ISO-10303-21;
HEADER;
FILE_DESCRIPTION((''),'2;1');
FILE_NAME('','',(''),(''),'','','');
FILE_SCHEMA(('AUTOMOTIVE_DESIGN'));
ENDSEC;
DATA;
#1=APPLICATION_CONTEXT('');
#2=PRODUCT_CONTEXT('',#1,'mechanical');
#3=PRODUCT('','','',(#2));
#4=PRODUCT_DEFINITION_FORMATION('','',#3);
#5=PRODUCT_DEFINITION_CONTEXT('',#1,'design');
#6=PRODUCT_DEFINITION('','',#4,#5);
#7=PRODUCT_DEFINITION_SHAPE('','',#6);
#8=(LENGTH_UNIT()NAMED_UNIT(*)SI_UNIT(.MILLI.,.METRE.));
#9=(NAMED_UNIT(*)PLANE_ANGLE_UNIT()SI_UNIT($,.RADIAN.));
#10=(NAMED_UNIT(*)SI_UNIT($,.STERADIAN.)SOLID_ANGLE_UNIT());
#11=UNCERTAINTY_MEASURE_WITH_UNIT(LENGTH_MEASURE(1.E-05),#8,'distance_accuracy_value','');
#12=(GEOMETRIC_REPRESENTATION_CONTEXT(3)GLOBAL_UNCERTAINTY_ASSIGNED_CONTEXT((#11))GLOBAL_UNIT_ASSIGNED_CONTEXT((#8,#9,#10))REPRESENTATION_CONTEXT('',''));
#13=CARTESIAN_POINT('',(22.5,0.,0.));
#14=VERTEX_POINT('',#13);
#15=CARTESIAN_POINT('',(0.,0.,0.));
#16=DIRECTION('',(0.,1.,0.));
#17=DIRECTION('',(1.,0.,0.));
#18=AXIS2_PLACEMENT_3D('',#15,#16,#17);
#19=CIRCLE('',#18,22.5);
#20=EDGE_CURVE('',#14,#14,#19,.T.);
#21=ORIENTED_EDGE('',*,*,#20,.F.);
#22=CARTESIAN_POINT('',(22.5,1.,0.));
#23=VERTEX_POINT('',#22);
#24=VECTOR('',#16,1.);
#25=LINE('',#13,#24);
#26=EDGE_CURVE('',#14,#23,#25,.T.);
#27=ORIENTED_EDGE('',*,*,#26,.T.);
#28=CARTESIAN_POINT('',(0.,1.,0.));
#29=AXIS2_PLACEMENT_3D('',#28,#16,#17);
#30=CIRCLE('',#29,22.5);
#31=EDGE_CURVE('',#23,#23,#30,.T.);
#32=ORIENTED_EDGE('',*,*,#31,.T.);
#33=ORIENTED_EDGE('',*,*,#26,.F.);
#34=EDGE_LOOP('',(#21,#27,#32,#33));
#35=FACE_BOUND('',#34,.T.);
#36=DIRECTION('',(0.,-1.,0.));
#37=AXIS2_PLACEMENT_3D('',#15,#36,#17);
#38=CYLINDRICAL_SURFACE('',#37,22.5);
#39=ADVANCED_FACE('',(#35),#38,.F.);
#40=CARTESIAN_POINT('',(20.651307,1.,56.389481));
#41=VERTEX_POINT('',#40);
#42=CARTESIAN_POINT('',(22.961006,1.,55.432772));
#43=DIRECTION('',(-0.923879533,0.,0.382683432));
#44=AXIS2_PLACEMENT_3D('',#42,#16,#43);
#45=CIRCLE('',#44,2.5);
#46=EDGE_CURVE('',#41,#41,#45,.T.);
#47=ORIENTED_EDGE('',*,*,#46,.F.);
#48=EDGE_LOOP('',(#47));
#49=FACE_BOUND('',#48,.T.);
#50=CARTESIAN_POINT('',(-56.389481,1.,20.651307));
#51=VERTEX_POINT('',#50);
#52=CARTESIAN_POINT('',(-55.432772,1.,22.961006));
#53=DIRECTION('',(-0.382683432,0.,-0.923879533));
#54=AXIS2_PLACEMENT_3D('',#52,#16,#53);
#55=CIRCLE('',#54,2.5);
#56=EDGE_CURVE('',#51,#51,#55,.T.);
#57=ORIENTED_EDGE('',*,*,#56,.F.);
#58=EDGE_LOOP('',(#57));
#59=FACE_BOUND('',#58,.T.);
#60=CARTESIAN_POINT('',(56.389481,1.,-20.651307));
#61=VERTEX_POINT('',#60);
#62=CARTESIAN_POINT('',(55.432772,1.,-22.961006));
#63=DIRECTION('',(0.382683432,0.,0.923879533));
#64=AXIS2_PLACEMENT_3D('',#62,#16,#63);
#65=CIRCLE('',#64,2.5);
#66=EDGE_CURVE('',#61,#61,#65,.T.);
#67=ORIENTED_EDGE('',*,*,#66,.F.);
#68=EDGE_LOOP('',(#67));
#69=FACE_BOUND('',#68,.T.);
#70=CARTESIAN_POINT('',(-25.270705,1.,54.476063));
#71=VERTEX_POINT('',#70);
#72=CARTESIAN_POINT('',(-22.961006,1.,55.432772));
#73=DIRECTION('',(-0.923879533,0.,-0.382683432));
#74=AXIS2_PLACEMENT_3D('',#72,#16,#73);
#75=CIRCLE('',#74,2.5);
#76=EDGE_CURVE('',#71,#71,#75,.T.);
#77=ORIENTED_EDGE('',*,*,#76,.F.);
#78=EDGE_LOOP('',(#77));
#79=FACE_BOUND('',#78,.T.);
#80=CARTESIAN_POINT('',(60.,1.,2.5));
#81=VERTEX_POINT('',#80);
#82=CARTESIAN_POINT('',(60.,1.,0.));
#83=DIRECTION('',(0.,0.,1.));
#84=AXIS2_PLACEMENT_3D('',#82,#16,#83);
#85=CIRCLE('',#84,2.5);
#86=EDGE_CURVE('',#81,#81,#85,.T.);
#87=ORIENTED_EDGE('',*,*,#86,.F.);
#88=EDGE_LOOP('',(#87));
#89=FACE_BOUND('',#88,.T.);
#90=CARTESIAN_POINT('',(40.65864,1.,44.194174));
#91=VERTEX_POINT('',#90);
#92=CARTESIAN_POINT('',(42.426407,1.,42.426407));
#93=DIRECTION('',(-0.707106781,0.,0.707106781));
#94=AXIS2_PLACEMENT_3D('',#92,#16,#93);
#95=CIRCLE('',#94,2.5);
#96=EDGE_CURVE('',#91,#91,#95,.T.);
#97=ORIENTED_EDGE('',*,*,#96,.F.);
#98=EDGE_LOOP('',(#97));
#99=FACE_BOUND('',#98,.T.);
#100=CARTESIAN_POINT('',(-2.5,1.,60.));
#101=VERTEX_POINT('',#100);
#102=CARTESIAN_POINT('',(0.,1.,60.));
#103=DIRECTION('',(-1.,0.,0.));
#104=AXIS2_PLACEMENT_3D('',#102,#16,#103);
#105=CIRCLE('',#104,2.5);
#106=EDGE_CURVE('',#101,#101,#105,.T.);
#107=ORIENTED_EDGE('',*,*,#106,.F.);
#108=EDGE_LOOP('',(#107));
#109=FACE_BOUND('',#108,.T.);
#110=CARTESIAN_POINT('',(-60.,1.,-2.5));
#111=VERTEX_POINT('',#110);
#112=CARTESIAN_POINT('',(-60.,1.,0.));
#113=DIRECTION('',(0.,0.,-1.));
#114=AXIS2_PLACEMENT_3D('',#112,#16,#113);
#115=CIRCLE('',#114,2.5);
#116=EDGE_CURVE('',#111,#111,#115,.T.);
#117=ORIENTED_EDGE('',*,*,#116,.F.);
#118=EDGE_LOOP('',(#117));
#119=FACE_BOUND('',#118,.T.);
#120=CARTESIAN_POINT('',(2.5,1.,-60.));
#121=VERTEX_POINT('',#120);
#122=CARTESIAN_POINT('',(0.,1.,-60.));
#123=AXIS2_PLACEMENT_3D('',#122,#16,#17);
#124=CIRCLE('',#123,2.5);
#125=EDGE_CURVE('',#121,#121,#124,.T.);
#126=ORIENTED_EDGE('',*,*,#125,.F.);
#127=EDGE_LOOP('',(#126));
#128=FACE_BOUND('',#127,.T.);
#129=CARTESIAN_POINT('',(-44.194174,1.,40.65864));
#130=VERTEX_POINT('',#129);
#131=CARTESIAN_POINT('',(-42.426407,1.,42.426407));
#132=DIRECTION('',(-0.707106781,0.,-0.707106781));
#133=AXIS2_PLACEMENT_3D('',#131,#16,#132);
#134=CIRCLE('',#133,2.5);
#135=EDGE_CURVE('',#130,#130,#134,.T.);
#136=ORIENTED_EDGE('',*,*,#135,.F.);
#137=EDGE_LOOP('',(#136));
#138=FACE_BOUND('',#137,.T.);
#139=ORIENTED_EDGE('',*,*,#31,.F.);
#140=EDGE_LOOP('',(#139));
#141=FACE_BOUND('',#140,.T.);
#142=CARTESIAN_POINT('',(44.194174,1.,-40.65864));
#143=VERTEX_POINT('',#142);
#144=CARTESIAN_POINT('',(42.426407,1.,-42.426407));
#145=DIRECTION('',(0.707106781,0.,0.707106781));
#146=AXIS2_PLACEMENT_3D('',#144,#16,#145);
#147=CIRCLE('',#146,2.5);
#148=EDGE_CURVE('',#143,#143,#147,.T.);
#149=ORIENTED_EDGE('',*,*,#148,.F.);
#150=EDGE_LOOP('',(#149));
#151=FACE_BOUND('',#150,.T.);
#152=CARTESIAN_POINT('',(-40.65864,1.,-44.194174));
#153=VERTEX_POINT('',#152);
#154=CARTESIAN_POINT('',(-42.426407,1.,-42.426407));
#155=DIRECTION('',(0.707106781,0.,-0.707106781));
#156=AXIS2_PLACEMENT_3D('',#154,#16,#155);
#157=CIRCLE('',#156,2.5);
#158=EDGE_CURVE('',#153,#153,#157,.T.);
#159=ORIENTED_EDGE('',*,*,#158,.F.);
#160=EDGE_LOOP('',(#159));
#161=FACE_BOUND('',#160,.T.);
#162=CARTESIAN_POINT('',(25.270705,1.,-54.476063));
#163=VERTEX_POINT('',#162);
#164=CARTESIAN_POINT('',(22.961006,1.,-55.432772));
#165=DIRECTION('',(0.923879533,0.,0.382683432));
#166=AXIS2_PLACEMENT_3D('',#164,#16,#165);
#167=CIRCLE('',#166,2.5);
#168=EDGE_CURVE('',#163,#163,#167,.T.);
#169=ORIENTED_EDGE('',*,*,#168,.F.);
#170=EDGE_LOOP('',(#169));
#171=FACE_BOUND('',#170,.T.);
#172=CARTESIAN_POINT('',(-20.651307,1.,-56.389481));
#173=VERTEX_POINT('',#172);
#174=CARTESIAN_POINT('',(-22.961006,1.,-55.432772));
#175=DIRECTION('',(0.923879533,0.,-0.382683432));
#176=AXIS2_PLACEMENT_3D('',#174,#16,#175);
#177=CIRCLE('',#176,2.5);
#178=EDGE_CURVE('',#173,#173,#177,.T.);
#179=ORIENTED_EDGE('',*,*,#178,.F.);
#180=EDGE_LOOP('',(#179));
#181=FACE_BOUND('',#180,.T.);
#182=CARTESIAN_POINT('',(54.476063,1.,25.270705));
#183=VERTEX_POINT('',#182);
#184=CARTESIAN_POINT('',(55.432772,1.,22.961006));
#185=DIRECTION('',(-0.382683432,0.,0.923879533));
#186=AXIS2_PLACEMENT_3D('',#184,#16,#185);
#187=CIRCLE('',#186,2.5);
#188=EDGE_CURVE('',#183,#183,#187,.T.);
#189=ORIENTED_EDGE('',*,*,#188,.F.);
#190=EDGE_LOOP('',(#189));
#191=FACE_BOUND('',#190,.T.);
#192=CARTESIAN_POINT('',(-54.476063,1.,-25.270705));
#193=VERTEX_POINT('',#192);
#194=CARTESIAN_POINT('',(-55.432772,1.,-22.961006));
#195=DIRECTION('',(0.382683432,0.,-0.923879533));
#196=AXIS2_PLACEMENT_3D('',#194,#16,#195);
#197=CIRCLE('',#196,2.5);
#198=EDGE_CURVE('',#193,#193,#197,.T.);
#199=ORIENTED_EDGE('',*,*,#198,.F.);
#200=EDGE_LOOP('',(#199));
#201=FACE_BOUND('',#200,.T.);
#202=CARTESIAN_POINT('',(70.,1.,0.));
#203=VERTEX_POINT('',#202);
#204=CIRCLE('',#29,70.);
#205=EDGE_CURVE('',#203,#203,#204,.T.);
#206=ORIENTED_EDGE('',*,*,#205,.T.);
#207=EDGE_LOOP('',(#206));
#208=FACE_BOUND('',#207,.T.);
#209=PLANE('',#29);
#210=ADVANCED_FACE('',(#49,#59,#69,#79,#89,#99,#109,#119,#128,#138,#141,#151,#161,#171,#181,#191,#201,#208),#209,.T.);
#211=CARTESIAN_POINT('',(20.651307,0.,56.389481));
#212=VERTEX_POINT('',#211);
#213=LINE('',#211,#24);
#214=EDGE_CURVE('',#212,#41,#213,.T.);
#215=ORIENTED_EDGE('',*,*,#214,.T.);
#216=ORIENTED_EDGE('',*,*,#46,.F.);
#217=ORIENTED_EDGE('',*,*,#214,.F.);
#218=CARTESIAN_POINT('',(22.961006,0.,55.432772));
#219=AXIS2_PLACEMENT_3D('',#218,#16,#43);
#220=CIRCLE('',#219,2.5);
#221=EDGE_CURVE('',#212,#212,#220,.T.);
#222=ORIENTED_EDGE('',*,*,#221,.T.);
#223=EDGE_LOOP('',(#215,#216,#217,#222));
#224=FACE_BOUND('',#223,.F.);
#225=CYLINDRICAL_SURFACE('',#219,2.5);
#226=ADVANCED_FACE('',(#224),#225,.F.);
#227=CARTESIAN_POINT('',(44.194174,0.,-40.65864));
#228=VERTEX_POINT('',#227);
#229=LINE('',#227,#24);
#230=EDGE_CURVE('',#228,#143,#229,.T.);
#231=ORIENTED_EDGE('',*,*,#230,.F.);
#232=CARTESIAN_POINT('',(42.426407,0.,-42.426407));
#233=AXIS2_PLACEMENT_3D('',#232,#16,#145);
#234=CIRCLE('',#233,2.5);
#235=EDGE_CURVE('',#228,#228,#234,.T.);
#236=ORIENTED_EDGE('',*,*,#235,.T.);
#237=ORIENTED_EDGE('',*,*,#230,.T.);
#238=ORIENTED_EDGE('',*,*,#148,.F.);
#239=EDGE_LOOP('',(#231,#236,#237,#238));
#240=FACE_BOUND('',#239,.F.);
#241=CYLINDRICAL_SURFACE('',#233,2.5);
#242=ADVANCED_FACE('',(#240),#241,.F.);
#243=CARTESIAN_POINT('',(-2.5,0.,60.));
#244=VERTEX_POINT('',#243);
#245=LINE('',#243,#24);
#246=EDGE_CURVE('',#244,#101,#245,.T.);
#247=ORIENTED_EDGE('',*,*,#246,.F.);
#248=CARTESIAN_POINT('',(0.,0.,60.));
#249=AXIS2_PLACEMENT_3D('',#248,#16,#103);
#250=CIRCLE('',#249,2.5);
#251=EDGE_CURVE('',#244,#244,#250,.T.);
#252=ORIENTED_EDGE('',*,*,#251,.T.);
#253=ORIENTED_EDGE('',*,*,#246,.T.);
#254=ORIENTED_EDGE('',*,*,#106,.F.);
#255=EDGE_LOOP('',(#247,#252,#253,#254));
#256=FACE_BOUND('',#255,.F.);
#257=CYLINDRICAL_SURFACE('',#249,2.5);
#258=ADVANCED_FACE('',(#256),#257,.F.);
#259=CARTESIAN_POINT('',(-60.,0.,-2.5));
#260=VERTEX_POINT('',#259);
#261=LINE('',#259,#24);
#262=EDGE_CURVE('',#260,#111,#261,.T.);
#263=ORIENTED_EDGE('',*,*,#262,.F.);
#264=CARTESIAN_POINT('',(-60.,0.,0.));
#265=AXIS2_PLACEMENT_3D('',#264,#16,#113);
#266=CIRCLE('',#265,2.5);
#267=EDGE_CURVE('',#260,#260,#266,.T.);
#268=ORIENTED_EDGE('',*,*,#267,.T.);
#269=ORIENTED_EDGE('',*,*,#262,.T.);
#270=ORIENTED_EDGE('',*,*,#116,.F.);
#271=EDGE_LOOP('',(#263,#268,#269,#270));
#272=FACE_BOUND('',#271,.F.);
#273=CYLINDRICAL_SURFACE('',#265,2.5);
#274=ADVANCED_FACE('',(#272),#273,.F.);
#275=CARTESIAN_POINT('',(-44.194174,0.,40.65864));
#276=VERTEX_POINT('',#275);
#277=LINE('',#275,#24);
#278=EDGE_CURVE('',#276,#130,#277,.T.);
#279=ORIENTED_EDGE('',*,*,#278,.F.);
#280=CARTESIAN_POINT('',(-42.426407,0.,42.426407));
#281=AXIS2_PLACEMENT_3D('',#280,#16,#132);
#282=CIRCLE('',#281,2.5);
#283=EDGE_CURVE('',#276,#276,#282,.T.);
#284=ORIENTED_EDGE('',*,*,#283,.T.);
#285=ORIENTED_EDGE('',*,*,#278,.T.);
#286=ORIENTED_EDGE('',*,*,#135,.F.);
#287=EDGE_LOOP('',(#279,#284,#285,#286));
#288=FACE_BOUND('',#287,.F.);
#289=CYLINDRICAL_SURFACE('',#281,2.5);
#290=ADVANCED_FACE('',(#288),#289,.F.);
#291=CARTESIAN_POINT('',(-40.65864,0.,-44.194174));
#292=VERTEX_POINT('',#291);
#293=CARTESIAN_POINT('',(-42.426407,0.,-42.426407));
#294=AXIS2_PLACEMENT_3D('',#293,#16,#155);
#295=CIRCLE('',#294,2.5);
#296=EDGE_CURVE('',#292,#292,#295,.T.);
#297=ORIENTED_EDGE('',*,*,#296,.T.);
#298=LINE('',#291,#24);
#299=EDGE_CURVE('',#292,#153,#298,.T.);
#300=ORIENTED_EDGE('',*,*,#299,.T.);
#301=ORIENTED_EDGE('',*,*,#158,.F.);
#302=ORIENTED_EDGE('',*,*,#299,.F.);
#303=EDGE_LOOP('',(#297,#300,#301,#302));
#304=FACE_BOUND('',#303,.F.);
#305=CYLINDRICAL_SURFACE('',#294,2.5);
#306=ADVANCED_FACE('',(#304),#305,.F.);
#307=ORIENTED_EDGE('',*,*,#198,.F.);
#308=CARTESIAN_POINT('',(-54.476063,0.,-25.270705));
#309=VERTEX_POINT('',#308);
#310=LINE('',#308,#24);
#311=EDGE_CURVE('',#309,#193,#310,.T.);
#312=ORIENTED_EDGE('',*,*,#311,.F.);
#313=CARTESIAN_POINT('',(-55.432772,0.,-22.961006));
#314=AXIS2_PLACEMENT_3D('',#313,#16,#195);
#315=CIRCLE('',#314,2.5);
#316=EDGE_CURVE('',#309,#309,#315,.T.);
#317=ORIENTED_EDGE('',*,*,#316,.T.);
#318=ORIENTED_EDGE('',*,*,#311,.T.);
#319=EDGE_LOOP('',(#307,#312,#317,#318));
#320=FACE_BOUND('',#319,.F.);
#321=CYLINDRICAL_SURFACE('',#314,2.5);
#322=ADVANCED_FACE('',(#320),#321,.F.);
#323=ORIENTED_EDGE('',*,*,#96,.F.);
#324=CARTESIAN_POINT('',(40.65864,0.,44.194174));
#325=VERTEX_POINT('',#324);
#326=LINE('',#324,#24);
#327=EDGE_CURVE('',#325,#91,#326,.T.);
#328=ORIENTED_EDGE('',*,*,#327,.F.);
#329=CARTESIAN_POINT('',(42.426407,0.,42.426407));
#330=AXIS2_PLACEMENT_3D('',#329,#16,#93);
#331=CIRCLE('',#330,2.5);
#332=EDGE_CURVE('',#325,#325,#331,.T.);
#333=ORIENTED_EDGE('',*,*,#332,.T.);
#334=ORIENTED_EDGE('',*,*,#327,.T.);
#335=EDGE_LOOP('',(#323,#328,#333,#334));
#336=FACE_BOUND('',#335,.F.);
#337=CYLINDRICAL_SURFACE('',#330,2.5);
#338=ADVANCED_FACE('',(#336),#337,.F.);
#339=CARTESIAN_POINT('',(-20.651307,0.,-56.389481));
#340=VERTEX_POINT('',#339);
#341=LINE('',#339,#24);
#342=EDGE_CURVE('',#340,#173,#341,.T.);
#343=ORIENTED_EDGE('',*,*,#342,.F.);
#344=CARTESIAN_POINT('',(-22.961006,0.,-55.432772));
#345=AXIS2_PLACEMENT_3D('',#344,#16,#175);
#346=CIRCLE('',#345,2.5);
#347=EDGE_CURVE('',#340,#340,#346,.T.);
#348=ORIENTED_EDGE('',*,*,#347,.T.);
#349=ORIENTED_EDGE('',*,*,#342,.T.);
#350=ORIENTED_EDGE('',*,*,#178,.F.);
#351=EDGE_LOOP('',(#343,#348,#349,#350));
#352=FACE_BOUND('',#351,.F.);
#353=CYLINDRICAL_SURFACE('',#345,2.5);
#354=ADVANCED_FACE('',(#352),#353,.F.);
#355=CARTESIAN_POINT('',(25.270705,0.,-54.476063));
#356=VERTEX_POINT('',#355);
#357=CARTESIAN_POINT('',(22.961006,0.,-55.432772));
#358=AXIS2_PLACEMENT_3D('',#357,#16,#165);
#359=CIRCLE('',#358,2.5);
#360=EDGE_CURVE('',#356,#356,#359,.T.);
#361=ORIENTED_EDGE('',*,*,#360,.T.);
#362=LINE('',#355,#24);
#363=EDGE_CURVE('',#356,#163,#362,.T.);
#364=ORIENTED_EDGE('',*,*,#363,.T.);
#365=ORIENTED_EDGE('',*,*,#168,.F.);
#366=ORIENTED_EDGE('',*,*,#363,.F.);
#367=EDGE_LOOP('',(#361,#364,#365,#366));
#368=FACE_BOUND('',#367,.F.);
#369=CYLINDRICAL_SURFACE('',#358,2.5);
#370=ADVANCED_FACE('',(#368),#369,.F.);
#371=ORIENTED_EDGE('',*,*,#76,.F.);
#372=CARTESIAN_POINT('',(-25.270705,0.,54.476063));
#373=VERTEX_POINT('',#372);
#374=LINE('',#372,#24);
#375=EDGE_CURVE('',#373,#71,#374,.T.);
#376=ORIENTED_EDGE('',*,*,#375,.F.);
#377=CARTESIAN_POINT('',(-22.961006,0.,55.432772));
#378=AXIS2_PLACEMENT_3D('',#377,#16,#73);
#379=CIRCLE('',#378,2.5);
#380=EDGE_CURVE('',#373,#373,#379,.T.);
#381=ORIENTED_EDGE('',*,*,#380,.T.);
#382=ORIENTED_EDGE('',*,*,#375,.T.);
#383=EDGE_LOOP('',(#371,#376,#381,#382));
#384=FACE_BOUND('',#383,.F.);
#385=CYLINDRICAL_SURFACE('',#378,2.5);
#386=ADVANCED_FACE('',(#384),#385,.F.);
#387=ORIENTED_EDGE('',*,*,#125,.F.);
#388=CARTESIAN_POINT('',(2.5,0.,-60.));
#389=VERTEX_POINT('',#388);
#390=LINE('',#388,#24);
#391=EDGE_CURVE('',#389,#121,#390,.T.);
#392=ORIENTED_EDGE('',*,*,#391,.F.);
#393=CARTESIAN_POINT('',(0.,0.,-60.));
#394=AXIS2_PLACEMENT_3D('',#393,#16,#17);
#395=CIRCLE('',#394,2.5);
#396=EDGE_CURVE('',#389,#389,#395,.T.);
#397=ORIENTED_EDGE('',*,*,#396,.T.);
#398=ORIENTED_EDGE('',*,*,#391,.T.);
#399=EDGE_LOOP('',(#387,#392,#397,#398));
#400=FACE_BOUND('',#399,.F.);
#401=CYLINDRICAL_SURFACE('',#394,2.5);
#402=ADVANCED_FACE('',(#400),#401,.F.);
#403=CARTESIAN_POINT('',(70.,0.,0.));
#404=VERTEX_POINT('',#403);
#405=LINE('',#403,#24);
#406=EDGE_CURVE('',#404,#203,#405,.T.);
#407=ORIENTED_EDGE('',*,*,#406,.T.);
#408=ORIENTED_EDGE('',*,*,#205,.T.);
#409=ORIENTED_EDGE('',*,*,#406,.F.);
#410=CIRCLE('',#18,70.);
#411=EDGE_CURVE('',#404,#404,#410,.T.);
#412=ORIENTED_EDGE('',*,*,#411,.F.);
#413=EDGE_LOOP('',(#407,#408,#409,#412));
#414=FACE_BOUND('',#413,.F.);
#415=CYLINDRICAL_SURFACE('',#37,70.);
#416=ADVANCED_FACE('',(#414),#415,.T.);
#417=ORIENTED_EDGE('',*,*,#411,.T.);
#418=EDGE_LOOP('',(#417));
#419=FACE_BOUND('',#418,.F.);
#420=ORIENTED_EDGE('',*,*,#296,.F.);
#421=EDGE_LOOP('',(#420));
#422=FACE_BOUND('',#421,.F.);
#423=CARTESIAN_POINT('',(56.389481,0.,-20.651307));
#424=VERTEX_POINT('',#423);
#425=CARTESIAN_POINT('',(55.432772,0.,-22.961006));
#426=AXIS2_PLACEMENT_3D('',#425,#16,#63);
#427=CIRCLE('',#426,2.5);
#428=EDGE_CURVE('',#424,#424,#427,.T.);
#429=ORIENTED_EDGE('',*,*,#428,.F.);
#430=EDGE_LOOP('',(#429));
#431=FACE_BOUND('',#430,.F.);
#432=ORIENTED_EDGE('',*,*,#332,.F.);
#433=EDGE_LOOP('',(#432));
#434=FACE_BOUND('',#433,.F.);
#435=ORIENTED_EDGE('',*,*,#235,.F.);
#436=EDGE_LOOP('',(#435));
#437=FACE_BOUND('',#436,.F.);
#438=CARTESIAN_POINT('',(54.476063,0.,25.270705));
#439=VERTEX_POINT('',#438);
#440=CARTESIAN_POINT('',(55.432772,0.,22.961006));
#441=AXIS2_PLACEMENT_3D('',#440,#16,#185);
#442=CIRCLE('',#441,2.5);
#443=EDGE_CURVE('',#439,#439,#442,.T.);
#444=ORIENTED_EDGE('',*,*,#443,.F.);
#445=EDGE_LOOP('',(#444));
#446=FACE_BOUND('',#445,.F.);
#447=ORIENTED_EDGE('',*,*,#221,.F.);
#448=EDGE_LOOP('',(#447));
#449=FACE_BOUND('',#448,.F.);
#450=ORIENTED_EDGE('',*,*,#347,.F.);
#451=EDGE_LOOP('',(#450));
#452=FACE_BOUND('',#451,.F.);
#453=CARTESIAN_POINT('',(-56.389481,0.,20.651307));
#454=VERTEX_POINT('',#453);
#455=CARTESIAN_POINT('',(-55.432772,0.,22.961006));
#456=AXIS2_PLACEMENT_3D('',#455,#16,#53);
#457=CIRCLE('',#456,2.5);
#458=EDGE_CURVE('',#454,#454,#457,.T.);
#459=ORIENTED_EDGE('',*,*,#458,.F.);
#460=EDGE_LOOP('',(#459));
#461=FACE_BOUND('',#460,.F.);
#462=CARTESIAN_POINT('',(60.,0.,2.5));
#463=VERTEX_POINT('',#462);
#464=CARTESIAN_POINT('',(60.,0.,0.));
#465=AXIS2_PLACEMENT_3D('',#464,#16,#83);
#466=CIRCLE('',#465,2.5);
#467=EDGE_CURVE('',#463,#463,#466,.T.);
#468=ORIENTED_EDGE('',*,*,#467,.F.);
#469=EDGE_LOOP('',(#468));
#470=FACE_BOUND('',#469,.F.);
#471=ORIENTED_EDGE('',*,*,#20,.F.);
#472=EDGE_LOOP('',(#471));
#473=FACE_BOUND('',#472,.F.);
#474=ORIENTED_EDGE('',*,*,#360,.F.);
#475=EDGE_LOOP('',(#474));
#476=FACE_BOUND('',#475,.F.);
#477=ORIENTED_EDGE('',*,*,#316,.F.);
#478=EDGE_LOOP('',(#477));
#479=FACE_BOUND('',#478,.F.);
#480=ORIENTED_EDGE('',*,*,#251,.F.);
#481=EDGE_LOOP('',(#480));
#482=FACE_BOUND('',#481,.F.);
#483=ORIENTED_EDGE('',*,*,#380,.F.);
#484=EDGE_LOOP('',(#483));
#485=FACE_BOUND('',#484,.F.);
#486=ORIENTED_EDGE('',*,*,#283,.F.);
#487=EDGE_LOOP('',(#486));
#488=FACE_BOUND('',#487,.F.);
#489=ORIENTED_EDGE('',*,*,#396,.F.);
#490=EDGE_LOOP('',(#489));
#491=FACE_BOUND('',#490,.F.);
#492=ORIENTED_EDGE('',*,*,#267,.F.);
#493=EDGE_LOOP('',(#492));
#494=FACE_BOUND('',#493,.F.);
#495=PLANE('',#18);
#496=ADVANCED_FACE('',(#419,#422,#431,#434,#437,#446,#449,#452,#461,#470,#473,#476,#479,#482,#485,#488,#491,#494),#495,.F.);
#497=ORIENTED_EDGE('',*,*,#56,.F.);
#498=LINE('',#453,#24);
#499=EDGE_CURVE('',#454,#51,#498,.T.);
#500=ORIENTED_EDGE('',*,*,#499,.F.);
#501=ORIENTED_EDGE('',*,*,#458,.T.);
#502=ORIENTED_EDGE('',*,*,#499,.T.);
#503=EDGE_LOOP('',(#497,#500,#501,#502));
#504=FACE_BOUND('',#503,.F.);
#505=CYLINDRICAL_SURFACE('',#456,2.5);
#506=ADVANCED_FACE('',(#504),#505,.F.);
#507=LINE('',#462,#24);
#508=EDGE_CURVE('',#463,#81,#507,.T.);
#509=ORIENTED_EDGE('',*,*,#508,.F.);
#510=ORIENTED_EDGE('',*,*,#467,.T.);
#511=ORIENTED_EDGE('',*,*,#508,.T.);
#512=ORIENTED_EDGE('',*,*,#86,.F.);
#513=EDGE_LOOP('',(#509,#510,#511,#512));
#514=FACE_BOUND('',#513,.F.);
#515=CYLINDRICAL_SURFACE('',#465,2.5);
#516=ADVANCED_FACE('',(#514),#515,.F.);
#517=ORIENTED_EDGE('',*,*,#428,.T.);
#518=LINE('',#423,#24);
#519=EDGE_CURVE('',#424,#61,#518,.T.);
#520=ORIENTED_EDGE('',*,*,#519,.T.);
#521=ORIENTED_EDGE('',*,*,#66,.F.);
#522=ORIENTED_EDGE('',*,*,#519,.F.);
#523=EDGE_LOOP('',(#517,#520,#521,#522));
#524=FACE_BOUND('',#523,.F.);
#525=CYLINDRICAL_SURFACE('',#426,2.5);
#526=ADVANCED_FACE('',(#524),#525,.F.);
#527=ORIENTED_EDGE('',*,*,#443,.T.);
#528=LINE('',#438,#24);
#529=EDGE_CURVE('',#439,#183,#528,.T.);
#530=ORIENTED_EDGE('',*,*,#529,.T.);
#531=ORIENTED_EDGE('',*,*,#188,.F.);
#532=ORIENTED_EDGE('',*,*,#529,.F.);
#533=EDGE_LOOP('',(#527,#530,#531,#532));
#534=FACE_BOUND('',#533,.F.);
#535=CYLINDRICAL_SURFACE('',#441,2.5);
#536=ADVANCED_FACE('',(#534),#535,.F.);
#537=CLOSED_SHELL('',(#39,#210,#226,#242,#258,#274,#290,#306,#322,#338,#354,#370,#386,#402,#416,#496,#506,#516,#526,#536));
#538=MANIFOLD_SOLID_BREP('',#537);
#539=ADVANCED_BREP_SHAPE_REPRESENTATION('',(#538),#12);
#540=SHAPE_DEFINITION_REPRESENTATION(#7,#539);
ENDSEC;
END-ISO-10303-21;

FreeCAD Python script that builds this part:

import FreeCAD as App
import Part
import Sketcher
from FreeCAD import Vector

doc = App.newDocument("Part")
body = doc.addObject("PartDesign::Body", "Body")

sketch1 = body.newObject("Sketcher::SketchObject", "Sketch")
sketch1.AttachmentSupport = (doc.getObject("XZ_Plane"), [""])
sketch1.MapMode = "FlatFace"
sketch1.addGeometry(Part.Circle(Vector(0, 0, 0), Vector(0, 0, 1), 70), False)
sketch1.addGeometry(Part.Circle(Vector(0, 0, 0), Vector(0, 0, 1), 22), False)
sketch1.addConstraint(Sketcher.Constraint("Coincident", 0, 3, -1, 1))
sketch1.addConstraint(Sketcher.Constraint("Coincident", 1, 3, -1, 1))
sketch1.addConstraint(Sketcher.Constraint("Diameter", 0, 140.0))
sketch1.addConstraint(Sketcher.Constraint("Diameter", 1, 45.0))
pad1 = body.newObject("PartDesign::Pad", "Pad")
pad1.Profile = sketch1
pad1.Length = 1
pad1.Reversed = True

sketch2 = body.newObject("Sketcher::SketchObject", "Sketch001")
sketch2.AttachmentSupport = (doc.getObject("XZ_Plane"), [""])
sketch2.MapMode = "FlatFace"
sketch2.addGeometry(Part.Circle(Vector(-60, 0, 0), Vector(0, 0, 1), 2.5), False)
sketch2.addConstraint(Sketcher.Constraint("PointOnObject", 0, 3, -1))
sketch2.addConstraint(Sketcher.Constraint("Diameter", 0, 5.0))
sketch2.addConstraint(Sketcher.Constraint("DistanceX", 0, 3, -1, 1, 60.0))
doc.recompute()
hole = body.newObject("PartDesign::Hole", "Hole")
hole.Profile = sketch2
hole.ThreadType = "None"
hole.Diameter = 5
hole.DepthType = "Dimension"
hole.Depth = 30
hole.DrillPoint = "Angled"
hole.DrillPointAngle = 118
doc.recompute()

polarpattern = body.newObject("PartDesign::PolarPattern", "PolarPattern")
polarpattern.Originals = [hole]
polarpattern.Axis = (doc.getObject("Y_Axis"), [""])
polarpattern.Angle = 360
polarpattern.Occurrences = 16
body.Tip = polarpattern

doc.recompute()
